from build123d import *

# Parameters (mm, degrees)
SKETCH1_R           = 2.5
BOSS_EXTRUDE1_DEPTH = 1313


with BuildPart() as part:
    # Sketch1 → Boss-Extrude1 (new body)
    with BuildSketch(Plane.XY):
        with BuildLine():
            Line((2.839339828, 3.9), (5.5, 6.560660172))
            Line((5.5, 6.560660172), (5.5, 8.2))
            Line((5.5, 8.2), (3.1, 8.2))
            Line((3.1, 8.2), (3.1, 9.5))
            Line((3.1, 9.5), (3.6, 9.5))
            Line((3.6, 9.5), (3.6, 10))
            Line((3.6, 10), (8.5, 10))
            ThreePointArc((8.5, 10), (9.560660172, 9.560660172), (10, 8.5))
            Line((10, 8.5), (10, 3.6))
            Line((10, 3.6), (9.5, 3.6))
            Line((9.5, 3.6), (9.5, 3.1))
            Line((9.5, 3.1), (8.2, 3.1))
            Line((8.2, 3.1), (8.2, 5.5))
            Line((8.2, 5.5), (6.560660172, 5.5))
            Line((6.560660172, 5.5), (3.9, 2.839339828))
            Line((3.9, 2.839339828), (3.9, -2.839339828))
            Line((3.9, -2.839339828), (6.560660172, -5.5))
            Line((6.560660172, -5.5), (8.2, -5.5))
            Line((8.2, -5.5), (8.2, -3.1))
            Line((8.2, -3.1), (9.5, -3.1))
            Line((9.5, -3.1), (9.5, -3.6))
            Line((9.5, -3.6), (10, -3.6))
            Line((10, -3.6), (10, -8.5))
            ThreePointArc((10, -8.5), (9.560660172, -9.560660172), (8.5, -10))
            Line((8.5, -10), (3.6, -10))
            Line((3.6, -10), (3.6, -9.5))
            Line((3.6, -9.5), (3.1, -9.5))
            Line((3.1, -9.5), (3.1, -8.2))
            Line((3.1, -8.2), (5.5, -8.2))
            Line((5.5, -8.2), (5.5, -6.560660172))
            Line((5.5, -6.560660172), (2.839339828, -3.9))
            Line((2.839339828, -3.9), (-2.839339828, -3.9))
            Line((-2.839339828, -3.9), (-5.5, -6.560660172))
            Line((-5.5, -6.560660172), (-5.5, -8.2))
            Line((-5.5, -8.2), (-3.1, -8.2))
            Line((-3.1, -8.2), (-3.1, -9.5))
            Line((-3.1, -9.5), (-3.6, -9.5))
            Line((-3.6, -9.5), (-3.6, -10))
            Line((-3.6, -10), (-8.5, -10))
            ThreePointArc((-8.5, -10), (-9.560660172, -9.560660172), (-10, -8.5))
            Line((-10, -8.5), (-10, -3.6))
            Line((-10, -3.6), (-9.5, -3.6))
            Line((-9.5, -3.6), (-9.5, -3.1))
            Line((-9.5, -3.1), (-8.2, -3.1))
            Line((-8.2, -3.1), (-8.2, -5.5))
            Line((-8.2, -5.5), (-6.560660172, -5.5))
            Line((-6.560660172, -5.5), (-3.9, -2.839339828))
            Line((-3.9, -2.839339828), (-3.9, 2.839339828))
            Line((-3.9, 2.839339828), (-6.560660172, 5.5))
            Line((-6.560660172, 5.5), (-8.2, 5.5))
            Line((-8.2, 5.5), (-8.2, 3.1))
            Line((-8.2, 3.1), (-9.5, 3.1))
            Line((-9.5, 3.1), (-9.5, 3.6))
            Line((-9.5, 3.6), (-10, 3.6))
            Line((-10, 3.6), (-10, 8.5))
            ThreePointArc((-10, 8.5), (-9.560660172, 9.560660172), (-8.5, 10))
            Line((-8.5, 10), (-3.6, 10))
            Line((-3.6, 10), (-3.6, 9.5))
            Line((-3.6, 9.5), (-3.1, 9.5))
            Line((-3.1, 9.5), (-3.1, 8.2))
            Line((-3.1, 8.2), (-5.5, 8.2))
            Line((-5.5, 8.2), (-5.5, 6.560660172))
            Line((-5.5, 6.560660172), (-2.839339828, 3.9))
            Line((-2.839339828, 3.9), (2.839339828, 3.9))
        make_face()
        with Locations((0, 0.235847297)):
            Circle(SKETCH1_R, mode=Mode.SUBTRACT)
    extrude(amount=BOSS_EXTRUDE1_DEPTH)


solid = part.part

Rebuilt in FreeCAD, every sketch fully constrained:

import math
import FreeCAD as App
import Part
import Sketcher

V = App.Vector

doc = App.newDocument("Part")
body = doc.addObject("PartDesign::Body", "Body")

# Sketch on XY plane
sketch1 = doc.addObject("Sketcher::SketchObject", "Sketch")
body.addObject(sketch1)
sketch1.AttachmentSupport = (doc.XY_Plane, [""])
sketch1.MapMode = "FlatFace"
sketch1.addGeometry(Part.LineSegment(V(5.5, 6.56066, 0), V(2.83934, 3.9, 0)), False)
sketch1.addGeometry(Part.LineSegment(V(2.83934, 3.9, 0), V(-2.83934, 3.9, 0)), False)
sketch1.addGeometry(Part.LineSegment(V(-2.83934, 3.9, 0), V(-5.5, 6.56066, 0)), False)
sketch1.addGeometry(Part.LineSegment(V(-5.5, 6.56066, 0), V(-5.5, 8.2, 0)), False)
sketch1.addGeometry(Part.LineSegment(V(-5.5, 8.2, 0), V(-3.1, 8.2, 0)), False)
sketch1.addGeometry(Part.LineSegment(V(-3.1, 8.2, 0), V(-3.1, 9.5, 0)), False)
sketch1.addGeometry(Part.LineSegment(V(-3.1, 9.5, 0), V(-3.6, 9.5, 0)), False)
sketch1.addGeometry(Part.LineSegment(V(-3.6, 9.5, 0), V(-3.6, 10, 0)), False)
sketch1.addGeometry(Part.LineSegment(V(-3.6, 10, 0), V(-8.5, 10, 0)), False)
sketch1.addGeometry(Part.ArcOfCircle(Part.Circle(V(-8.5, 8.5, 0), V(0, 0, 1), 1.5), math.radians(90), math.radians(180)), False)
sketch1.addGeometry(Part.LineSegment(V(-10, 8.5, 0), V(-10, 3.6, 0)), False)
sketch1.addGeometry(Part.LineSegment(V(-10, 3.6, 0), V(-9.5, 3.6, 0)), False)
sketch1.addGeometry(Part.LineSegment(V(-9.5, 3.6, 0), V(-9.5, 3.1, 0)), False)
sketch1.addGeometry(Part.LineSegment(V(-9.5, 3.1, 0), V(-8.2, 3.1, 0)), False)
sketch1.addGeometry(Part.LineSegment(V(-8.2, 3.1, 0), V(-8.2, 5.5, 0)), False)
sketch1.addGeometry(Part.LineSegment(V(-8.2, 5.5, 0), V(-6.56066, 5.5, 0)), False)
sketch1.addGeometry(Part.LineSegment(V(-6.56066, 5.5, 0), V(-3.9, 2.83934, 0)), False)
sketch1.addGeometry(Part.LineSegment(V(-3.9, 2.83934, 0), V(-3.9, -2.83934, 0)), False)
sketch1.addGeometry(Part.LineSegment(V(-3.9, -2.83934, 0), V(-6.56066, -5.5, 0)), False)
sketch1.addGeometry(Part.LineSegment(V(-6.56066, -5.5, 0), V(-8.2, -5.5, 0)), False)
sketch1.addGeometry(Part.LineSegment(V(-8.2, -5.5, 0), V(-8.2, -3.1, 0)), False)
sketch1.addGeometry(Part.LineSegment(V(-8.2, -3.1, 0), V(-9.5, -3.1, 0)), False)
sketch1.addGeometry(Part.LineSegment(V(-9.5, -3.1, 0), V(-9.5, -3.6, 0)), False)
sketch1.addGeometry(Part.LineSegment(V(-9.5, -3.6, 0), V(-10, -3.6, 0)), False)
sketch1.addGeometry(Part.LineSegment(V(-10, -3.6, 0), V(-10, -8.5, 0)), False)
sketch1.addGeometry(Part.ArcOfCircle(Part.Circle(V(-8.5, -8.5, 0), V(0, 0, 1), 1.5), math.radians(180), math.radians(270)), False)
sketch1.addGeometry(Part.LineSegment(V(-8.5, -10, 0), V(-3.6, -10, 0)), False)
sketch1.addGeometry(Part.LineSegment(V(-3.6, -10, 0), V(-3.6, -9.5, 0)), False)
sketch1.addGeometry(Part.LineSegment(V(-3.6, -9.5, 0), V(-3.1, -9.5, 0)), False)
sketch1.addGeometry(Part.LineSegment(V(-3.1, -9.5, 0), V(-3.1, -8.2, 0)), False)
sketch1.addGeometry(Part.LineSegment(V(-3.1, -8.2, 0), V(-5.5, -8.2, 0)), False)
sketch1.addGeometry(Part.LineSegment(V(-5.5, -8.2, 0), V(-5.5, -6.56066, 0)), False)
sketch1.addGeometry(Part.LineSegment(V(-5.5, -6.56066, 0), V(-2.83934, -3.9, 0)), False)
sketch1.addGeometry(Part.LineSegment(V(-2.83934, -3.9, 0), V(2.83934, -3.9, 0)), False)
sketch1.addGeometry(Part.LineSegment(V(2.83934, -3.9, 0), V(5.5, -6.56066, 0)), False)
sketch1.addGeometry(Part.LineSegment(V(5.5, -6.56066, 0), V(5.5, -8.2, 0)), False)
sketch1.addGeometry(Part.LineSegment(V(5.5, -8.2, 0), V(3.1, -8.2, 0)), False)
sketch1.addGeometry(Part.LineSegment(V(3.1, -8.2, 0), V(3.1, -9.5, 0)), False)
sketch1.addGeometry(Part.LineSegment(V(3.1, -9.5, 0), V(3.6, -9.5, 0)), False)
sketch1.addGeometry(Part.LineSegment(V(3.6, -9.5, 0), V(3.6, -10, 0)), False)
sketch1.addGeometry(Part.LineSegment(V(3.6, -10, 0), V(8.5, -10, 0)), False)
sketch1.addGeometry(Part.ArcOfCircle(Part.Circle(V(8.5, -8.5, 0), V(0, 0, 1), 1.5), math.radians(-90), math.radians(0)), False)
sketch1.addGeometry(Part.LineSegment(V(10, -8.5, 0), V(10, -3.6, 0)), False)
sketch1.addGeometry(Part.LineSegment(V(10, -3.6, 0), V(9.5, -3.6, 0)), False)
sketch1.addGeometry(Part.LineSegment(V(9.5, -3.6, 0), V(9.5, -3.1, 0)), False)
sketch1.addGeometry(Part.LineSegment(V(9.5, -3.1, 0), V(8.2, -3.1, 0)), False)
sketch1.addGeometry(Part.LineSegment(V(8.2, -3.1, 0), V(8.2, -5.5, 0)), False)
sketch1.addGeometry(Part.LineSegment(V(8.2, -5.5, 0), V(6.56066, -5.5, 0)), False)
sketch1.addGeometry(Part.LineSegment(V(6.56066, -5.5, 0), V(3.9, -2.83934, 0)), False)
sketch1.addGeometry(Part.LineSegment(V(3.9, -2.83934, 0), V(3.9, 2.83934, 0)), False)
sketch1.addGeometry(Part.LineSegment(V(3.9, 2.83934, 0), V(6.56066, 5.5, 0)), False)
sketch1.addGeometry(Part.LineSegment(V(6.56066, 5.5, 0), V(8.2, 5.5, 0)), False)
sketch1.addGeometry(Part.LineSegment(V(8.2, 5.5, 0), V(8.2, 3.1, 0)), False)
sketch1.addGeometry(Part.LineSegment(V(8.2, 3.1, 0), V(9.5, 3.1, 0)), False)
sketch1.addGeometry(Part.LineSegment(V(9.5, 3.1, 0), V(9.5, 3.6, 0)), False)
sketch1.addGeometry(Part.LineSegment(V(9.5, 3.6, 0), V(10, 3.6, 0)), False)
sketch1.addGeometry(Part.LineSegment(V(10, 3.6, 0), V(10, 8.5, 0)), False)
sketch1.addGeometry(Part.ArcOfCircle(Part.Circle(V(8.5, 8.5, 0), V(0, 0, 1), 1.5), math.radians(0), math.radians(90)), False)
sketch1.addGeometry(Part.LineSegment(V(8.5, 10, 0), V(3.6, 10, 0)), False)
sketch1.addGeometry(Part.LineSegment(V(3.6, 10, 0), V(3.6, 9.5, 0)), False)
sketch1.addGeometry(Part.LineSegment(V(3.6, 9.5, 0), V(3.1, 9.5, 0)), False)
sketch1.addGeometry(Part.LineSegment(V(3.1, 9.5, 0), V(3.1, 8.2, 0)), False)
sketch1.addGeometry(Part.LineSegment(V(3.1, 8.2, 0), V(5.5, 8.2, 0)), False)
sketch1.addGeometry(Part.LineSegment(V(5.5, 8.2, 0), V(5.5, 6.56066, 0)), False)
sketch1.addGeometry(Part.Circle(V(0, 0.235847, 0), V(0, 0, 1), 2.5), False)
sketch1.addConstraint(Sketcher.Constraint("Coincident", 0, 2, 1, 1))
sketch1.addConstraint(Sketcher.Constraint("Coincident", 1, 2, 2, 1))
sketch1.addConstraint(Sketcher.Constraint("Coincident", 2, 2, 3, 1))
sketch1.addConstraint(Sketcher.Constraint("Coincident", 3, 2, 4, 1))
sketch1.addConstraint(Sketcher.Constraint("Coincident", 4, 2, 5, 1))
sketch1.addConstraint(Sketcher.Constraint("Coincident", 5, 2, 6, 1))
sketch1.addConstraint(Sketcher.Constraint("Coincident", 6, 2, 7, 1))
sketch1.addConstraint(Sketcher.Constraint("Coincident", 7, 2, 8, 1))
sketch1.addConstraint(Sketcher.Constraint("Tangent", 8, 2, 9, 1))
sketch1.addConstraint(Sketcher.Constraint("Tangent", 9, 2, 10, 1))
sketch1.addConstraint(Sketcher.Constraint("Coincident", 10, 2, 11, 1))
sketch1.addConstraint(Sketcher.Constraint("Coincident", 11, 2, 12, 1))
sketch1.addConstraint(Sketcher.Constraint("Coincident", 12, 2, 13, 1))
sketch1.addConstraint(Sketcher.Constraint("Coincident", 13, 2, 14, 1))
sketch1.addConstraint(Sketcher.Constraint("Coincident", 14, 2, 15, 1))
sketch1.addConstraint(Sketcher.Constraint("Coincident", 15, 2, 16, 1))
sketch1.addConstraint(Sketcher.Constraint("Coincident", 16, 2, 17, 1))
sketch1.addConstraint(Sketcher.Constraint("Coincident", 17, 2, 18, 1))
sketch1.addConstraint(Sketcher.Constraint("Coincident", 18, 2, 19, 1))
sketch1.addConstraint(Sketcher.Constraint("Coincident", 19, 2, 20, 1))
sketch1.addConstraint(Sketcher.Constraint("Coincident", 20, 2, 21, 1))
sketch1.addConstraint(Sketcher.Constraint("Coincident", 21, 2, 22, 1))
sketch1.addConstraint(Sketcher.Constraint("Coincident", 22, 2, 23, 1))
sketch1.addConstraint(Sketcher.Constraint("Coincident", 23, 2, 24, 1))
sketch1.addConstraint(Sketcher.Constraint("Tangent", 24, 2, 25, 1))
sketch1.addConstraint(Sketcher.Constraint("Tangent", 25, 2, 26, 1))
sketch1.addConstraint(Sketcher.Constraint("Coincident", 26, 2, 27, 1))
sketch1.addConstraint(Sketcher.Constraint("Coincident", 27, 2, 28, 1))
sketch1.addConstraint(Sketcher.Constraint("Coincident", 28, 2, 29, 1))
sketch1.addConstraint(Sketcher.Constraint("Coincident", 29, 2, 30, 1))
sketch1.addConstraint(Sketcher.Constraint("Coincident", 30, 2, 31, 1))
sketch1.addConstraint(Sketcher.Constraint("Coincident", 31, 2, 32, 1))
sketch1.addConstraint(Sketcher.Constraint("Coincident", 32, 2, 33, 1))
sketch1.addConstraint(Sketcher.Constraint("Coincident", 33, 2, 34, 1))
sketch1.addConstraint(Sketcher.Constraint("Coincident", 34, 2, 35, 1))
sketch1.addConstraint(Sketcher.Constraint("Coincident", 35, 2, 36, 1))
sketch1.addConstraint(Sketcher.Constraint("Coincident", 36, 2, 37, 1))
sketch1.addConstraint(Sketcher.Constraint("Coincident", 37, 2, 38, 1))
sketch1.addConstraint(Sketcher.Constraint("Coincident", 38, 2, 39, 1))
sketch1.addConstraint(Sketcher.Constraint("Coincident", 39, 2, 40, 1))
sketch1.addConstraint(Sketcher.Constraint("Tangent", 40, 2, 41, 1))
sketch1.addConstraint(Sketcher.Constraint("Tangent", 41, 2, 42, 1))
sketch1.addConstraint(Sketcher.Constraint("Coincident", 42, 2, 43, 1))
sketch1.addConstraint(Sketcher.Constraint("Coincident", 43, 2, 44, 1))
sketch1.addConstraint(Sketcher.Constraint("Coincident", 44, 2, 45, 1))
sketch1.addConstraint(Sketcher.Constraint("Coincident", 45, 2, 46, 1))
sketch1.addConstraint(Sketcher.Constraint("Coincident", 46, 2, 47, 1))
sketch1.addConstraint(Sketcher.Constraint("Coincident", 47, 2, 48, 1))
sketch1.addConstraint(Sketcher.Constraint("Coincident", 48, 2, 49, 1))
sketch1.addConstraint(Sketcher.Constraint("Coincident", 49, 2, 50, 1))
sketch1.addConstraint(Sketcher.Constraint("Coincident", 50, 2, 51, 1))
sketch1.addConstraint(Sketcher.Constraint("Coincident", 51, 2, 52, 1))
sketch1.addConstraint(Sketcher.Constraint("Coincident", 52, 2, 53, 1))
sketch1.addConstraint(Sketcher.Constraint("Coincident", 53, 2, 54, 1))
sketch1.addConstraint(Sketcher.Constraint("Coincident", 54, 2, 55, 1))
sketch1.addConstraint(Sketcher.Constraint("Coincident", 55, 2, 56, 1))
sketch1.addConstraint(Sketcher.Constraint("Tangent", 56, 2, 57, 1))
sketch1.addConstraint(Sketcher.Constraint("Tangent", 57, 2, 58, 1))
sketch1.addConstraint(Sketcher.Constraint("Coincident", 58, 2, 59, 1))
sketch1.addConstraint(Sketcher.Constraint("Coincident", 59, 2, 60, 1))
sketch1.addConstraint(Sketcher.Constraint("Coincident", 60, 2, 61, 1))
sketch1.addConstraint(Sketcher.Constraint("Coincident", 61, 2, 62, 1))
sketch1.addConstraint(Sketcher.Constraint("Coincident", 62, 2, 63, 1))
sketch1.addConstraint(Sketcher.Constraint("Coincident", 63, 2, 0, 1))
sketch1.addConstraint(Sketcher.Constraint("Horizontal", 1))
sketch1.addConstraint(Sketcher.Constraint("Vertical", 3))
sketch1.addConstraint(Sketcher.Constraint("Horizontal", 4))
sketch1.addConstraint(Sketcher.Constraint("Vertical", 5))
sketch1.addConstraint(Sketcher.Constraint("Horizontal", 6))
sketch1.addConstraint(Sketcher.Constraint("Vertical", 7))
sketch1.addConstraint(Sketcher.Constraint("Horizontal", 8))
sketch1.addConstraint(Sketcher.Constraint("Vertical", 10))
sketch1.addConstraint(Sketcher.Constraint("Horizontal", 11))
sketch1.addConstraint(Sketcher.Constraint("Vertical", 12))
sketch1.addConstraint(Sketcher.Constraint("Horizontal", 13))
sketch1.addConstraint(Sketcher.Constraint("Vertical", 14))
sketch1.addConstraint(Sketcher.Constraint("Horizontal", 15))
sketch1.addConstraint(Sketcher.Constraint("Vertical", 17))
sketch1.addConstraint(Sketcher.Constraint("Horizontal", 19))
sketch1.addConstraint(Sketcher.Constraint("Vertical", 20))
sketch1.addConstraint(Sketcher.Constraint("Horizontal", 21))
sketch1.addConstraint(Sketcher.Constraint("Vertical", 22))
sketch1.addConstraint(Sketcher.Constraint("Horizontal", 23))
sketch1.addConstraint(Sketcher.Constraint("Vertical", 24))
sketch1.addConstraint(Sketcher.Constraint("Horizontal", 26))
sketch1.addConstraint(Sketcher.Constraint("Vertical", 27))
sketch1.addConstraint(Sketcher.Constraint("Horizontal", 28))
sketch1.addConstraint(Sketcher.Constraint("Vertical", 29))
sketch1.addConstraint(Sketcher.Constraint("Horizontal", 30))
sketch1.addConstraint(Sketcher.Constraint("Vertical", 31))
sketch1.addConstraint(Sketcher.Constraint("Horizontal", 33))
sketch1.addConstraint(Sketcher.Constraint("Vertical", 35))
sketch1.addConstraint(Sketcher.Constraint("Horizontal", 36))
sketch1.addConstraint(Sketcher.Constraint("Vertical", 37))
sketch1.addConstraint(Sketcher.Constraint("Horizontal", 38))
sketch1.addConstraint(Sketcher.Constraint("Vertical", 39))
sketch1.addConstraint(Sketcher.Constraint("Horizontal", 40))
sketch1.addConstraint(Sketcher.Constraint("Vertical", 42))
sketch1.addConstraint(Sketcher.Constraint("Horizontal", 43))
sketch1.addConstraint(Sketcher.Constraint("Vertical", 44))
sketch1.addConstraint(Sketcher.Constraint("Horizontal", 45))
sketch1.addConstraint(Sketcher.Constraint("Vertical", 46))
sketch1.addConstraint(Sketcher.Constraint("Horizontal", 47))
sketch1.addConstraint(Sketcher.Constraint("Vertical", 49))
sketch1.addConstraint(Sketcher.Constraint("Horizontal", 51))
sketch1.addConstraint(Sketcher.Constraint("Vertical", 52))
sketch1.addConstraint(Sketcher.Constraint("Horizontal", 53))
sketch1.addConstraint(Sketcher.Constraint("Vertical", 54))
sketch1.addConstraint(Sketcher.Constraint("Horizontal", 55))
sketch1.addConstraint(Sketcher.Constraint("Vertical", 56))
sketch1.addConstraint(Sketcher.Constraint("Horizontal", 58))
sketch1.addConstraint(Sketcher.Constraint("Vertical", 59))
sketch1.addConstraint(Sketcher.Constraint("Horizontal", 60))
sketch1.addConstraint(Sketcher.Constraint("Vertical", 61))
sketch1.addConstraint(Sketcher.Constraint("Horizontal", 62))
sketch1.addConstraint(Sketcher.Constraint("Vertical", 63))
sketch1.addConstraint(Sketcher.Constraint("Equal", 9, 25))
sketch1.addConstraint(Sketcher.Constraint("Equal", 25, 41))
sketch1.addConstraint(Sketcher.Constraint("Equal", 41, 57))
sketch1.addConstraint(Sketcher.Constraint("Symmetric", 9, 3, 41, 3, -1, 1))
sketch1.addConstraint(Sketcher.Constraint("Symmetric", 25, 3, 57, 3, -1, 1))
sketch1.addConstraint(Sketcher.Constraint("Symmetric", 0, 2, 32, 2, -1, 1))
sketch1.addConstraint(Sketcher.Constraint("Symmetric", 2, 2, 34, 2, -1, 1))
sketch1.addConstraint(Sketcher.Constraint("Symmetric", 4, 2, 36, 2, -1, 1))
sketch1.addConstraint(Sketcher.Constraint("Symmetric", 6, 2, 38, 2, -1, 1))
sketch1.addConstraint(Sketcher.Constraint("Symmetric", 11, 2, 43, 2, -1, 1))
sketch1.addConstraint(Sketcher.Constraint("Symmetric", 13, 2, 45, 2, -1, 1))
sketch1.addConstraint(Sketcher.Constraint("Symmetric", 15, 2, 47, 2, -1, 1))
sketch1.addConstraint(Sketcher.Constraint("Symmetric", 16, 2, 48, 2, -1, 1))
sketch1.addConstraint(Sketcher.Constraint("Symmetric", 18, 2, 50, 2, -1, 1))
sketch1.addConstraint(Sketcher.Constraint("Symmetric", 20, 2, 52, 2, -1, 1))
sketch1.addConstraint(Sketcher.Constraint("Symmetric", 22, 2, 54, 2, -1, 1))
sketch1.addConstraint(Sketcher.Constraint("Symmetric", 27, 2, 59, 2, -1, 1))
sketch1.addConstraint(Sketcher.Constraint("Symmetric", 29, 2, 61, 2, -1, 1))
sketch1.addConstraint(Sketcher.Constraint("Symmetric", 31, 2, 63, 2, -1, 1))
sketch1.addConstraint(Sketcher.Constraint("Symmetric", 25, 3, 41, 3, -2))
sketch1.addConstraint(Sketcher.Constraint("Symmetric", 31, 2, 34, 2, -2))
sketch1.addConstraint(Sketcher.Constraint("Symmetric", 29, 2, 36, 2, -2))
sketch1.addConstraint(Sketcher.Constraint("Symmetric", 27, 2, 38, 2, -2))
sketch1.addConstraint(Sketcher.Constraint("Symmetric", 22, 2, 43, 2, -2))
sketch1.addConstraint(Sketcher.Constraint("Symmetric", 20, 2, 45, 2, -2))
sketch1.addConstraint(Sketcher.Constraint("Symmetric", 18, 2, 47, 2, -2))
sketch1.addConstraint(Sketcher.Constraint("PointOnObject", 64, 3, -2))
sketch1.addConstraint(Sketcher.Constraint("Perpendicular", 0, 2))
sketch1.addConstraint(Sketcher.Constraint("Parallel", 2, 16))
sketch1.addConstraint(Sketcher.Constraint("Perpendicular", 16, 18))
sketch1.addConstraint(Sketcher.Constraint("Perpendicular", 32, 34))
sketch1.addConstraint(Sketcher.Constraint("Perpendicular", 48, 50))
sketch1.addConstraint(Sketcher.Constraint("Horizontal", 17, 2, 48, 2))
sketch1.addConstraint(Sketcher.Constraint("Equal", 6, 11))
sketch1.addConstraint(Sketcher.Constraint("Equal", 51, 3))
sketch1.addConstraint(Sketcher.Constraint("Equal", 53, 5))
sketch1.addConstraint(Sketcher.Constraint("Equal", 60, 7))
sketch1.addConstraint(Sketcher.Constraint("Equal", 58, 10))
sketch1.addConstraint(Sketcher.Constraint("Equal", 7, 12))
sketch1.addConstraint(Sketcher.Constraint("Equal", 62, 14))
sketch1.addConstraint(Sketcher.Constraint("Equal", 33, 17))
sketch1.addConstraint(Sketcher.Constraint("Equal", 2, 16))
sketch1.addConstraint(Sketcher.Constraint("Diameter", 64, 5.0))
sketch1.addConstraint(Sketcher.Constraint("Radius", 9, 1.5))
sketch1.addConstraint(Sketcher.Constraint("DistanceX", 4, 1, 4, 2, 2.4))
sketch1.addConstraint(Sketcher.Constraint("DistanceX", 6, 2, 6, 1, 0.5))
sketch1.addConstraint(Sketcher.Constraint("DistanceX", 8, 2, 8, 1, 4.9))
sketch1.addConstraint(Sketcher.Constraint("DistanceX", 13, 1, 13, 2, 1.3))
sketch1.addConstraint(Sketcher.Constraint("DistanceY", -1, 1, 7, 2, 10.0))
sketch1.addConstraint(Sketcher.Constraint("DistanceY", -1, 1, 0, 2, 3.9))
sketch1.addConstraint(Sketcher.Constraint("DistanceX", 1, 2, 1, 1, 5.67868))
sketch1.addConstraint(Sketcher.Constraint("DistanceY", -1, 1, 64, 3, 0.235847))
pad1 = doc.addObject("PartDesign::Pad", "Pad")
body.addObject(pad1)
pad1.Profile = sketch1
pad1.Length = 1313

doc.recompute()
